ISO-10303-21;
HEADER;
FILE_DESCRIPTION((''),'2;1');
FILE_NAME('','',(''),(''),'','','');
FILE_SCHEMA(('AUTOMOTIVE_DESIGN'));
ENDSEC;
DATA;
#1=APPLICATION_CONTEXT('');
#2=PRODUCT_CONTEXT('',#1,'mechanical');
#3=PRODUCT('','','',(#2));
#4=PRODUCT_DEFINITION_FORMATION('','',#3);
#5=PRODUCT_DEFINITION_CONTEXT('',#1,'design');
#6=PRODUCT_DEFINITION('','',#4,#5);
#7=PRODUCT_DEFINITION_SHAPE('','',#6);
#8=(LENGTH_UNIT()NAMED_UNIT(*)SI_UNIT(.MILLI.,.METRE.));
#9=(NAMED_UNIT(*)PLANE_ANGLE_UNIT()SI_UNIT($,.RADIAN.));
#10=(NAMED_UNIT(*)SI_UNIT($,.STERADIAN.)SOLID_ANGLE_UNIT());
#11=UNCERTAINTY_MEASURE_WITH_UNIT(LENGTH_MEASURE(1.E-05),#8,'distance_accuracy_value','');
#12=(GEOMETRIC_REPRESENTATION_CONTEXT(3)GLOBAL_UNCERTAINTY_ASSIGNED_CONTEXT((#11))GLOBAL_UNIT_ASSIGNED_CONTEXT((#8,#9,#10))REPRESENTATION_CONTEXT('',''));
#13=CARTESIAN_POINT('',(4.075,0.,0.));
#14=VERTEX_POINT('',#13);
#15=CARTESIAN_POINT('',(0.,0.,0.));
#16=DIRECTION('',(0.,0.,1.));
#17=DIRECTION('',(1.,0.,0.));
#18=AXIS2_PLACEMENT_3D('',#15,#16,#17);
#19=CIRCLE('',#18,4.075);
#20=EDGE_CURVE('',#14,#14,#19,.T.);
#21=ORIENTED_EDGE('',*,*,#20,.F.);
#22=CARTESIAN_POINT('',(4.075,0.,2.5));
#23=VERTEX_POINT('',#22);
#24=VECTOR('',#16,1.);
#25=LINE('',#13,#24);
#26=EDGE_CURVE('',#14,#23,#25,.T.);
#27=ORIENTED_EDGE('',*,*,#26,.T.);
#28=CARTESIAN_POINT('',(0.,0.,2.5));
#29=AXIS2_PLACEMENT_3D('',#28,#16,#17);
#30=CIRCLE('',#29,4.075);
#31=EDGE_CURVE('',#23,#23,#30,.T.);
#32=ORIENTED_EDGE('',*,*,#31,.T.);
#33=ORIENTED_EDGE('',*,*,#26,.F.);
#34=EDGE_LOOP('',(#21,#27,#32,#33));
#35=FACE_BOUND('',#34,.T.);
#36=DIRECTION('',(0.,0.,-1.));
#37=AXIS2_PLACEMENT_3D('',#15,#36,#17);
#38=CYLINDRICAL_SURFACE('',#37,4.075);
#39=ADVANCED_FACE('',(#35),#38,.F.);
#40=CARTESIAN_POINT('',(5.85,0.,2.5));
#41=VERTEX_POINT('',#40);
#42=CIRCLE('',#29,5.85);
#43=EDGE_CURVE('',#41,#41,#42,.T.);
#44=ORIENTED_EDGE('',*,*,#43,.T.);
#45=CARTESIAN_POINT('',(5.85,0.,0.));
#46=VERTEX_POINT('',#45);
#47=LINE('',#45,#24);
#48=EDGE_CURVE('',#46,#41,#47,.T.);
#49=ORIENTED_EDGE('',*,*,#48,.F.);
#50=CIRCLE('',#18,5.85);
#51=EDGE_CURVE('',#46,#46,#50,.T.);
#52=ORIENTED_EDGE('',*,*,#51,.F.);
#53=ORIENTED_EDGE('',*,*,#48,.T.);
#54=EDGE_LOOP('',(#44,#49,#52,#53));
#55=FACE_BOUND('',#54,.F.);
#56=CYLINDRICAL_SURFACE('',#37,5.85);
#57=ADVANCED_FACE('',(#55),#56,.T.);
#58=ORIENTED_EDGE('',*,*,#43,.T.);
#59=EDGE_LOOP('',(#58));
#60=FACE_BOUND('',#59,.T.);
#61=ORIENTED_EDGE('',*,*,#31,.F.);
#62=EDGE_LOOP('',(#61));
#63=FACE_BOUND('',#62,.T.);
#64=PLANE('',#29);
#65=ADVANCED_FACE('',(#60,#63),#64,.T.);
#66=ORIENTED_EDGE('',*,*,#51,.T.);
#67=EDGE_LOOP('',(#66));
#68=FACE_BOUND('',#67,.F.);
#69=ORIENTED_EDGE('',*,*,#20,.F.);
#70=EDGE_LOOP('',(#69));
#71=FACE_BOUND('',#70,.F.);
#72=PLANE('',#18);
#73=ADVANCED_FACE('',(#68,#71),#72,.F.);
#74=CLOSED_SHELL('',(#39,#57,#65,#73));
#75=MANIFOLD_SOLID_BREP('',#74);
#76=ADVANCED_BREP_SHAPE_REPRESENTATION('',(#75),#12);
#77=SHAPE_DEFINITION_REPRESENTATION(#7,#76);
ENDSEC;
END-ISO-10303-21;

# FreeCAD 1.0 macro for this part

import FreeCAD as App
import Part
import Sketcher

V = App.Vector

doc = App.newDocument("Part")
body = doc.addObject("PartDesign::Body", "Body")

sketch1 = body.newObject("Sketcher::SketchObject", "Sketch")
sketch1.AttachmentSupport = (doc.getObject("XY_Plane"), [""])
sketch1.MapMode = "FlatFace"
sketch1.addGeometry([
    Part.Circle(V(0, 0, 0), V(0, 0, 1), 5.85),
    Part.Circle(V(0, 0, 0), V(0, 0, 1), 4.075),
], False)
sketch1.addConstraint([
    Sketcher.Constraint("Coincident", 0, 3, -1, 1),
    Sketcher.Constraint("Coincident", 1, 3, -1, 1),
    Sketcher.Constraint("Diameter", 0, 11.7),
    Sketcher.Constraint("Diameter", 1, 8.15),
])
pad1 = body.newObject("PartDesign::Pad", "Pad")
pad1.Profile = sketch1
pad1.Length = 2.5

doc.recompute()
